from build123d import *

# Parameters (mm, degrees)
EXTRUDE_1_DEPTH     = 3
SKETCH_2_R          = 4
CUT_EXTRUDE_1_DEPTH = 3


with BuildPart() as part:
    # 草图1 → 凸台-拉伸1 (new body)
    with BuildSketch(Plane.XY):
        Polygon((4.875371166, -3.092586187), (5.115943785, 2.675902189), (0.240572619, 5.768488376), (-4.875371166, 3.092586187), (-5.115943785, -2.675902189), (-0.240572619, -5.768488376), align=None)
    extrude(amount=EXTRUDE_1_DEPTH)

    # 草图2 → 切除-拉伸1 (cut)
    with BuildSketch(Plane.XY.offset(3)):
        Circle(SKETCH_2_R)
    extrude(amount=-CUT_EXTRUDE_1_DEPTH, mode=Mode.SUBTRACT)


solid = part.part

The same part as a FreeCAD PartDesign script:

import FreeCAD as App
import Part
import Sketcher
from FreeCAD import Vector
Q = App.Units.Quantity


def add_polygon(sketch, points):
    """Adds a closed chain of lines whose ends are joined by coincident constraints."""
    first, n = sketch.GeometryCount, len(points)
    for a, b in zip(points, points[1:] + points[:1]):
        sketch.addGeometry(Part.LineSegment(App.Vector(*a, 0), App.Vector(*b, 0)), False)
    for i in range(n):
        sketch.addConstraint(Sketcher.Constraint("Coincident", first + i, 2, first + (i + 1) % n, 1))

doc = App.newDocument("Part")
params = doc.addObject("Spreadsheet::Sheet", "Params")
for row, (alias, value) in enumerate([
    ("pad1_length", "3 mm"),
    ("sketch2_diameter", "8 mm"),
    ("pocket1_length", "3 mm"),
], start=1):
    params.set(f"A{row}", alias)
    params.set(f"B{row}", "=" + value)
    params.setAlias(f"B{row}", alias)

body = doc.addObject("PartDesign::Body", "Body")

# Sketch on XY plane
sketch1 = body.newObject("Sketcher::SketchObject", "Sketch")
sketch1.AttachmentSupport = (doc.getObject("XY_Plane"), [""])
sketch1.MapMode = "FlatFace"
add_polygon(sketch1, [(4.875371, -3.092586), (5.115944, 2.675902), (0.240573, 5.768488), (-4.875371, 3.092586), (-5.115944, -2.675902), (-0.240573, -5.768488)])  # lines 0-5
sketch1.addConstraint([
    Sketcher.Constraint("Symmetric", 0, 2, 3, 2, -1, 1),
    Sketcher.Constraint("Symmetric", 1, 2, 4, 2, -1, 1),
    Sketcher.Constraint("Symmetric", 2, 2, 5, 2, -1, 1),
    Sketcher.Constraint("Equal", 0, 1),
    Sketcher.Constraint("Equal", 1, 2),
    Sketcher.Constraint("DistanceX", 2, 2, 4, 2, Q("4.634799 mm")),
    Sketcher.Constraint("DistanceY", -1, 1, 1, 2, Q("5.768488 mm")),
    Sketcher.Constraint("DistanceX", 2, 2, -1, 1, Q("4.875371 mm")),
    Sketcher.Constraint("DistanceX", 1, 2, 0, 2, Q("4.875371 mm")),
])
pad1 = body.newObject("PartDesign::Pad", "Pad")
pad1.Profile = sketch1
pad1.setExpression("Length", "Params.pad1_length")

# Sketch on XY plane
sketch2 = body.newObject("Sketcher::SketchObject", "Sketch001")
sketch2.AttachmentSupport = (doc.getObject("XY_Plane"), [""])
sketch2.MapMode = "FlatFace"
sketch2.AttachmentOffset = App.Placement(Vector(0, 0, 3), App.Rotation())
sketch2.addGeometry(Part.Circle(Vector(0, 0, 0), Vector(0, 0, 1), 4), False)
sketch2.addConstraint([
    Sketcher.Constraint("Coincident", 0, 3, -1, 1),
    Sketcher.Constraint("Diameter", 0, Q("8 mm")),
])
sketch2.setExpression("Constraints[1]", "Params.sketch2_diameter")
pocket1 = body.newObject("PartDesign::Pocket", "Pocket")
pocket1.Profile = sketch2
pocket1.setExpression("Length", "Params.pocket1_length")

doc.recompute()
